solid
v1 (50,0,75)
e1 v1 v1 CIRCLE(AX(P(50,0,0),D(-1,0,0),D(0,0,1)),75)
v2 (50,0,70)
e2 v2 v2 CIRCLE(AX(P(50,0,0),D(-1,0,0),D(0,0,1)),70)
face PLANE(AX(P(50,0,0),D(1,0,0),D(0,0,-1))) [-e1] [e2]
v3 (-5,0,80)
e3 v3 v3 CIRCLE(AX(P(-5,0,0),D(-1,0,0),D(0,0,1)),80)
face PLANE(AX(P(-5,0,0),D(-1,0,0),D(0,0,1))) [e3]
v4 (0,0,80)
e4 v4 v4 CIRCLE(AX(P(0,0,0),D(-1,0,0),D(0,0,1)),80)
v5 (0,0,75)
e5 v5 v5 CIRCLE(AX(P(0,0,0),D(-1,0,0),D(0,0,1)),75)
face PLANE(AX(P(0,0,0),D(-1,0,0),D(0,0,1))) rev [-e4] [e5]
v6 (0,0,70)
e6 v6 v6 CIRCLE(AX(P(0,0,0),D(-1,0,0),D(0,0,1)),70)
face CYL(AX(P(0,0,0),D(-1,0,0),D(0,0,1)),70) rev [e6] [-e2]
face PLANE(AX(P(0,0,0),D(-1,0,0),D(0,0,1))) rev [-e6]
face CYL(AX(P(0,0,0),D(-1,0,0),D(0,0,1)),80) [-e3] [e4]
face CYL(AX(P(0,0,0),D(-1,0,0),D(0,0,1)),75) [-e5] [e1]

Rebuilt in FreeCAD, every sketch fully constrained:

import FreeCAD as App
import Part
import Sketcher
Q = App.Units.Quantity

doc = App.newDocument("Part")
body = doc.addObject("PartDesign::Body", "Body")

# Sketch on XY plane
sketch1 = body.newObject("Sketcher::SketchObject", "Sketch")
sketch1.AttachmentSupport = (doc.getObject("XY_Plane"), [""])
sketch1.MapMode = "FlatFace"
sketch1.addGeometry([
    Part.LineSegment(App.Vector(-5, 80, 0), App.Vector(-5, 0, 0)),  # 0
    Part.LineSegment(App.Vector(-5, 0, 0), App.Vector(0, 0, 0)),  # 1
    Part.LineSegment(App.Vector(0, 0, 0), App.Vector(0, 70, 0)),  # 2
    Part.LineSegment(App.Vector(0, 70, 0), App.Vector(50, 70, 0)),  # 3
    Part.LineSegment(App.Vector(50, 70, 0), App.Vector(50, 75, 0)),  # 4
    Part.LineSegment(App.Vector(50, 75, 0), App.Vector(0, 75, 0)),  # 5
    Part.LineSegment(App.Vector(0, 75, 0), App.Vector(0, 80, 0)),  # 6
    Part.LineSegment(App.Vector(0, 80, 0), App.Vector(-5, 80, 0)),  # 7
], False)
sketch1.addConstraint([
    Sketcher.Constraint("Coincident", 0, 2, 1, 1),
    Sketcher.Constraint("Coincident", 1, 2, 2, 1),
    Sketcher.Constraint("Coincident", 2, 2, 3, 1),
    Sketcher.Constraint("Coincident", 3, 2, 4, 1),
    Sketcher.Constraint("Coincident", 4, 2, 5, 1),
    Sketcher.Constraint("Coincident", 5, 2, 6, 1),
    Sketcher.Constraint("Coincident", 6, 2, 7, 1),
    Sketcher.Constraint("Coincident", 7, 2, 0, 1),
    Sketcher.Constraint("Vertical", 0),
    Sketcher.Constraint("Horizontal", 1),
    Sketcher.Constraint("Vertical", 2),
    Sketcher.Constraint("Horizontal", 3),
    Sketcher.Constraint("Vertical", 4),
    Sketcher.Constraint("Horizontal", 5),
    Sketcher.Constraint("Vertical", 6),
    Sketcher.Constraint("Horizontal", 7),
    Sketcher.Constraint("Coincident", 1, 2, -1, 1),
    Sketcher.Constraint("PointOnObject", 5, 2, -2),
    Sketcher.Constraint("Equal", 7, 4),
    Sketcher.Constraint("Equal", 4, 6),
    Sketcher.Constraint("DistanceX", 1, 1, 1, 2, Q("5 mm")),
    Sketcher.Constraint("DistanceX", 3, 1, 3, 2, Q("50 mm")),
    Sketcher.Constraint("DistanceY", 0, 2, 0, 1, Q("80 mm")),
])
revolution = body.newObject("PartDesign::Revolution", "Revolution")
revolution.Profile = sketch1
revolution.ReferenceAxis = (sketch1, ["H_Axis"])
revolution.Angle = 360

doc.recompute()
